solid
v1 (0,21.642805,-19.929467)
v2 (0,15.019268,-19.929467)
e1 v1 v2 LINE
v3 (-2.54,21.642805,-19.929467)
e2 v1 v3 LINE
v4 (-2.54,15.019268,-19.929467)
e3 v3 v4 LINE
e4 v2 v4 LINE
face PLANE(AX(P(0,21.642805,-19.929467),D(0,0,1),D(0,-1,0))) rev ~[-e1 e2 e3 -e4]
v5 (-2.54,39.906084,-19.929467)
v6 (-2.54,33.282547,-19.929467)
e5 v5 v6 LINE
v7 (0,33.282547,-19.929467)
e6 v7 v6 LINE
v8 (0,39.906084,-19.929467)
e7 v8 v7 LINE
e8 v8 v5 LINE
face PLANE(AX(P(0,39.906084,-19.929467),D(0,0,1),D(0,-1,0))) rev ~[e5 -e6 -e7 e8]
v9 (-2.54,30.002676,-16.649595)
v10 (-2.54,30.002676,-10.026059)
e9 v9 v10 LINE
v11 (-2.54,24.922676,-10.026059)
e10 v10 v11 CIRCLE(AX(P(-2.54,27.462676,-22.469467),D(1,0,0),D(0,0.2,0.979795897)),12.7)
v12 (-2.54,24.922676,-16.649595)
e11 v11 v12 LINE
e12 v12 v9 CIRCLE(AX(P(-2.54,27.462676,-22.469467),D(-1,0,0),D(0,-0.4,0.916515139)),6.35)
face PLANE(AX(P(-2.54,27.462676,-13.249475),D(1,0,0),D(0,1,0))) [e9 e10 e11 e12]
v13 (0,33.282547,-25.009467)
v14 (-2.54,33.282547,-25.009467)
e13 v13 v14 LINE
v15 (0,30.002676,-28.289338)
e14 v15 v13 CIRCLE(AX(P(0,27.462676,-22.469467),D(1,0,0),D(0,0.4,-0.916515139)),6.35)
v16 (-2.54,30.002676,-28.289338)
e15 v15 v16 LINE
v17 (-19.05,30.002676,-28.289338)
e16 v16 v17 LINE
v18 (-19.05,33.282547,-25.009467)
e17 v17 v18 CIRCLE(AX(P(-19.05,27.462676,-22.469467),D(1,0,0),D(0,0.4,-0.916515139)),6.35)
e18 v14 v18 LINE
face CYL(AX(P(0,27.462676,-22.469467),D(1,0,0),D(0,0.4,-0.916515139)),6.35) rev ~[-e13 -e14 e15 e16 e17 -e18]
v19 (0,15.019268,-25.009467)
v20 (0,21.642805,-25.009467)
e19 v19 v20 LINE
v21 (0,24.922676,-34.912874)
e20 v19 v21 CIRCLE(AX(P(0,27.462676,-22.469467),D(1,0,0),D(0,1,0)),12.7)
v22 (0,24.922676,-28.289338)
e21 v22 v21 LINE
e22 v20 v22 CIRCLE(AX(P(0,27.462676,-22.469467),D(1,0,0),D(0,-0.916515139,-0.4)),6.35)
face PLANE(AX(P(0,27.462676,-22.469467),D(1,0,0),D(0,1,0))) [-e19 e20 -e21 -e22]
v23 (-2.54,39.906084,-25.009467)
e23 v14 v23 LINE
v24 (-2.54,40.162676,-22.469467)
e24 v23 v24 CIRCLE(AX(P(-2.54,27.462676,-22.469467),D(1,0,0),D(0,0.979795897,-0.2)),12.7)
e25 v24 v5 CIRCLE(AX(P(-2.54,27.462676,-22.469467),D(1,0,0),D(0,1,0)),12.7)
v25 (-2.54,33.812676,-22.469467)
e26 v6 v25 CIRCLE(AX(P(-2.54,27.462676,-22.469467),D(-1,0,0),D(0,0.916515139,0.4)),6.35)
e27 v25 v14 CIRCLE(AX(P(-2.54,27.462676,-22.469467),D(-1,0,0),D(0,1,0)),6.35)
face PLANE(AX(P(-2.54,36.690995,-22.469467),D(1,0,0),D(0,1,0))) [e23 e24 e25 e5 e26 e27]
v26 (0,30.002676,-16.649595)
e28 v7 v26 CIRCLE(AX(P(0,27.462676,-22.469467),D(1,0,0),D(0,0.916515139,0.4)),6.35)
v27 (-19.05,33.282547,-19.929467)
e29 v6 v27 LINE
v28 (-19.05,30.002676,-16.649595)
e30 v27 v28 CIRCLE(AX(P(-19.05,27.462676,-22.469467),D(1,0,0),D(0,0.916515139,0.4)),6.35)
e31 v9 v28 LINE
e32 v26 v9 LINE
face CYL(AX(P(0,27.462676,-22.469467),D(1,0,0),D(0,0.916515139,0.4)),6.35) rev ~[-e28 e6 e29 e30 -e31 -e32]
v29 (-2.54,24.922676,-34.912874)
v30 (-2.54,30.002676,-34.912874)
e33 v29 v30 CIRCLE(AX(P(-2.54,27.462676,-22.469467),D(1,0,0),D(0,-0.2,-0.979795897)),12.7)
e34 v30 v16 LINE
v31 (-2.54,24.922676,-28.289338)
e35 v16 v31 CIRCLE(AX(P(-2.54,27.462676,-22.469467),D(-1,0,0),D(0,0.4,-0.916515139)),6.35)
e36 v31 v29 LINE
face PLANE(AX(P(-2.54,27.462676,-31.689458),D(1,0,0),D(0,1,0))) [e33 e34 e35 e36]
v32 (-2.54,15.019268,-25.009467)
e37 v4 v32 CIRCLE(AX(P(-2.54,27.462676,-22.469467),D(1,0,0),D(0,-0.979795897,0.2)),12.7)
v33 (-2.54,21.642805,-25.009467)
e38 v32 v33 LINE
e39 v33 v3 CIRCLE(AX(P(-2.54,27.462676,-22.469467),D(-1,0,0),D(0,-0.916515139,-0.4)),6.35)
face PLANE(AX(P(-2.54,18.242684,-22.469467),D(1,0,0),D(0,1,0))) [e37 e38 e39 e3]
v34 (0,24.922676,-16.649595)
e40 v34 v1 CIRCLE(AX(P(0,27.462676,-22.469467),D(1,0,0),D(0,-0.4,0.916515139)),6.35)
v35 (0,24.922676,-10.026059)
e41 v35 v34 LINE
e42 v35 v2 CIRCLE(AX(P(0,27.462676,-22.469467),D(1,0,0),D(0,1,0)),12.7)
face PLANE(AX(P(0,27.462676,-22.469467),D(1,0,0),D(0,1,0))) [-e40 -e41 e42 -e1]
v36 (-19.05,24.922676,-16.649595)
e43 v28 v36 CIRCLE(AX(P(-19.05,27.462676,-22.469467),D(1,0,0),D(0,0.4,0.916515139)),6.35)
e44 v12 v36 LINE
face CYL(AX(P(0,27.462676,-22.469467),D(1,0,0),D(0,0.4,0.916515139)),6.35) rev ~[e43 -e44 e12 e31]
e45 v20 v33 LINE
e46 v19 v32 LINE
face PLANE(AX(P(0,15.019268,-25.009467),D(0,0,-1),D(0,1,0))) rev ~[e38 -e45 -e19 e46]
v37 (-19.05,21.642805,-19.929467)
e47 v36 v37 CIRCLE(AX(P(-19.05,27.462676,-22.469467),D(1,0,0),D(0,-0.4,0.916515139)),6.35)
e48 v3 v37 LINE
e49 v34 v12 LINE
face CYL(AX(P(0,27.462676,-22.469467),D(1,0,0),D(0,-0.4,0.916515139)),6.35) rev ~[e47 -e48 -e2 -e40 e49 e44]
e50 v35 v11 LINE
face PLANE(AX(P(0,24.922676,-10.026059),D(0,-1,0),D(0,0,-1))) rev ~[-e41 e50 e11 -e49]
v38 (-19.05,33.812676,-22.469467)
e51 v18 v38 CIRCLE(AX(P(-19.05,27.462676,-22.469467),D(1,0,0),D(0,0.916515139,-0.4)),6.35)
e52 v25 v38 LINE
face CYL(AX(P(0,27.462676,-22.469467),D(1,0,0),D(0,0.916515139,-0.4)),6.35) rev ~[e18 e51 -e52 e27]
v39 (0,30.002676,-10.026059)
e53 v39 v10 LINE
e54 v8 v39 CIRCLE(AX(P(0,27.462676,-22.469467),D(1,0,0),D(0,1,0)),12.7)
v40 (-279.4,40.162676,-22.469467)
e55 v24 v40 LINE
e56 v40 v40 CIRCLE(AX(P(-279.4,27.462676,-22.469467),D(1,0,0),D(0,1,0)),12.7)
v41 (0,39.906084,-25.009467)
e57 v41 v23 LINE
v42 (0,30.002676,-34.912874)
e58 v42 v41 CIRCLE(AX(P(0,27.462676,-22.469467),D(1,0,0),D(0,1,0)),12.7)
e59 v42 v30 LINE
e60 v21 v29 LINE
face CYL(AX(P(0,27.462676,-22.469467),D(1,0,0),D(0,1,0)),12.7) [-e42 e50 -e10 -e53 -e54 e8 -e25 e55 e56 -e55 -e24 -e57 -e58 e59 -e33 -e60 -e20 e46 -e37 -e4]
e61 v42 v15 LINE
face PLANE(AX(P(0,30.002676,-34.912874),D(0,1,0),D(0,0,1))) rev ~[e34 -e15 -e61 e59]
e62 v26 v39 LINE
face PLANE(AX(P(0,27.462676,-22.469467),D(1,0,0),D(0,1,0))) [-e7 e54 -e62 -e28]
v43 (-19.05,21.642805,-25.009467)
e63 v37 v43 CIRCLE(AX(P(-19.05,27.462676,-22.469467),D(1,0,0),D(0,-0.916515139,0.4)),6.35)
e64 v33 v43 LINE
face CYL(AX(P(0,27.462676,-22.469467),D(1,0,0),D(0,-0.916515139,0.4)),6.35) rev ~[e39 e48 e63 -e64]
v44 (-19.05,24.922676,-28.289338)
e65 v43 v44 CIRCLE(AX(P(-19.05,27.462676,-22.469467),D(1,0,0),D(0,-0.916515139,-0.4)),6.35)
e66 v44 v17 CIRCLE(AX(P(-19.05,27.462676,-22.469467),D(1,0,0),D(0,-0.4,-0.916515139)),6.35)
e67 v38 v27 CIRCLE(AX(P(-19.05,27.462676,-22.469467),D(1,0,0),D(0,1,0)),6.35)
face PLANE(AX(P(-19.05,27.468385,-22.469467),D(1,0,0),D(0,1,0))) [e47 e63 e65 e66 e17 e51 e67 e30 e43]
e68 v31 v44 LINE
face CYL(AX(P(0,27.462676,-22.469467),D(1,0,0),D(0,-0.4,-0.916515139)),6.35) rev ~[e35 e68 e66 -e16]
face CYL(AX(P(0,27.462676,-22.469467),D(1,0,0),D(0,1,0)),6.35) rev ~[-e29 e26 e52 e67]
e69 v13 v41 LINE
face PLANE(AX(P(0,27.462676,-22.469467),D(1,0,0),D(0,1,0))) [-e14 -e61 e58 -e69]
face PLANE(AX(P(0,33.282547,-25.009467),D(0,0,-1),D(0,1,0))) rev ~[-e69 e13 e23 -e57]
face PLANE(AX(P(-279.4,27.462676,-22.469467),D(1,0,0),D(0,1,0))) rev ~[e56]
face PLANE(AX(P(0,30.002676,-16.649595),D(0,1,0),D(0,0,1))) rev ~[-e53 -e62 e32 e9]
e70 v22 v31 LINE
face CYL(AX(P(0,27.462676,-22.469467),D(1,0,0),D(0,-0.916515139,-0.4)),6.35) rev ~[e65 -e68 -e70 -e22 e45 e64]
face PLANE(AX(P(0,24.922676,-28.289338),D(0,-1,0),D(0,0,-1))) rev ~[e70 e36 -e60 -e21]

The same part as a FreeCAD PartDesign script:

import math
import FreeCAD as App
import Part
import Sketcher
from FreeCAD import Vector
Q = App.Units.Quantity

doc = App.newDocument("Part")
body = doc.addObject("PartDesign::Body", "Body")

# Sketch on YZ plane
sketch1 = body.newObject("Sketcher::SketchObject", "Sketch")
sketch1.AttachmentSupport = (doc.getObject("YZ_Plane"), [""])
sketch1.MapMode = "FlatFace"
sketch1.addGeometry(Part.Circle(Vector(27, -22, 0), Vector(0, 0, 1), 13), False)
sketch1.addConstraint([
    Sketcher.Constraint("Diameter", 0, Q("1 in")),
    Sketcher.Constraint("DistanceX", -1, 1, 0, 3, 27.462676),
    Sketcher.Constraint("DistanceY", 0, 3, -1, 1, 22.469467),
])
pad1 = body.newObject("PartDesign::Pad", "Pad")
pad1.Profile = sketch1
pad1.Length = Q("11 in")
pad1.Reversed = True

# Sketch on YZ plane
sketch2 = body.newObject("Sketcher::SketchObject", "Sketch001")
sketch2.AttachmentSupport = (doc.getObject("YZ_Plane"), [""])
sketch2.MapMode = "FlatFace"
sketch2.addGeometry([
    Part.ArcOfCircle(Part.Circle(Vector(27.5, -22.5, 0), Vector(0, 0, 1), 6.3), math.radians(-114), math.radians(-66)),  # 0
    Part.ArcOfCircle(Part.Circle(Vector(27.5, -22.5, 0), Vector(0, 0, 1), 6.3), math.radians(-66), math.radians(-24)),  # 1
    Part.ArcOfCircle(Part.Circle(Vector(27.5, -22.5, 0), Vector(0, 0, 1), 6.3), math.radians(-24), math.radians(0)),  # 2
    Part.ArcOfCircle(Part.Circle(Vector(27.5, -22.5, 0), Vector(0, 0, 1), 6.4), math.radians(0), math.radians(24)),  # 3
    Part.ArcOfCircle(Part.Circle(Vector(27.5, -22.5, 0), Vector(0, 0, 1), 6.4), math.radians(24), math.radians(66)),  # 4
    Part.ArcOfCircle(Part.Circle(Vector(27.5, -22.5, 0), Vector(0, 0, 1), 6.3), math.radians(66), math.radians(114)),  # 5
    Part.ArcOfCircle(Part.Circle(Vector(27.5, -22.5, 0), Vector(0, 0, 1), 6.4), math.radians(114), math.radians(156)),  # 6
    Part.ArcOfCircle(Part.Circle(Vector(27.5, -22.5, 0), Vector(0, 0, 1), 6.3), math.radians(156), math.radians(204)),  # 7
    Part.ArcOfCircle(Part.Circle(Vector(27.5, -22.5, 0), Vector(0, 0, 1), 6.3), math.radians(-156), math.radians(-114)),  # 8
], False)
sketch2.addConstraint([
    Sketcher.Constraint("Tangent", 0, 2, 1, 1),
    Sketcher.Constraint("Tangent", 1, 2, 2, 1),
    Sketcher.Constraint("Tangent", 2, 2, 3, 1),
    Sketcher.Constraint("Tangent", 3, 2, 4, 1),
    Sketcher.Constraint("Tangent", 4, 2, 5, 1),
    Sketcher.Constraint("Tangent", 5, 2, 6, 1),
    Sketcher.Constraint("Tangent", 6, 2, 7, 1),
    Sketcher.Constraint("Tangent", 7, 2, 8, 1),
    Sketcher.Constraint("Tangent", 8, 2, 0, 1),
    Sketcher.Constraint("Coincident", 2, 3, 0, 3),
    Sketcher.Constraint("Coincident", 4, 3, 0, 3),
    Sketcher.Constraint("Coincident", 6, 3, 0, 3),
    Sketcher.Constraint("Horizontal", 8, 3, 2, 2),
    Sketcher.Constraint("Horizontal", 4, 2, 5, 2),
    Sketcher.Constraint("Horizontal", 3, 2, 6, 2),
    Sketcher.Constraint("Horizontal", 1, 2, 7, 2),
    Sketcher.Constraint("Horizontal", 0, 2, 8, 2),
    Sketcher.Constraint("Vertical", 1, 2, 3, 2),
    Sketcher.Constraint("Vertical", 0, 2, 4, 2),
    Sketcher.Constraint("Radius", 0, Q("0.25 in")),
    Sketcher.Constraint("DistanceX", 6, 3, 0, 2, Q("0.1 in")),
    Sketcher.Constraint("DistanceY", 1, 2, 6, 3, Q("0.1 in")),
    Sketcher.Constraint("DistanceX", -1, 1, 0, 3, 27.462676),
    Sketcher.Constraint("DistanceY", 0, 3, -1, 1, 22.469467),
])
pocket1 = body.newObject("PartDesign::Pocket", "Pocket")
pocket1.Profile = sketch2
pocket1.Length = Q("0.75 in")

# Sketch on YZ plane
sketch3 = body.newObject("Sketcher::SketchObject", "Sketch002")
sketch3.AttachmentSupport = (doc.getObject("YZ_Plane"), [""])
sketch3.MapMode = "FlatFace"
sketch3.addGeometry([
    Part.LineSegment(Vector(15, -25, 0), Vector(21.6, -25, 0)),  # 0
    Part.ArcOfCircle(Part.Circle(Vector(27.5, -22.5, 0), Vector(0, 0, 1), 6.3), math.radians(156), math.radians(204)),  # 1
    Part.LineSegment(Vector(21.6, -19.9, 0), Vector(15, -19.9, 0)),  # 2
    Part.ArcOfCircle(Part.Circle(Vector(27.5, -22.5, 0), Vector(0, 0, 1), 12.7), math.radians(168), math.radians(192)),  # 3
    Part.LineSegment(Vector(24.9, -10, 0), Vector(24.9, -16.6, 0)),  # 4
    Part.ArcOfCircle(Part.Circle(Vector(27.5, -22.5, 0), Vector(0, 0, 1), 6.3), math.radians(66), math.radians(114)),  # 5
    Part.LineSegment(Vector(30, -16.6, 0), Vector(30, -10, 0)),  # 6
    Part.ArcOfCircle(Part.Circle(Vector(27.5, -22.5, 0), Vector(0, 0, 1), 12.7), math.radians(78), math.radians(102)),  # 7
    Part.ArcOfCircle(Part.Circle(Vector(27.5, -22.5, 0), Vector(0, 0, 1), 6.3), math.radians(-24), math.radians(0)),  # 8
    Part.LineSegment(Vector(33.3, -25, 0), Vector(39.9, -25, 0)),  # 9
    Part.ArcOfCircle(Part.Circle(Vector(27.5, -22.5, 0), Vector(0, 0, 1), 12.7), math.radians(-11.54), math.radians(0)),  # 10
    Part.ArcOfCircle(Part.Circle(Vector(27.5, -22.5, 0), Vector(0, 0, 1), 12.7), math.radians(0), math.radians(11.54)),  # 11
    Part.LineSegment(Vector(39.9, -19.9, 0), Vector(33.3, -19.9, 0)),  # 12
    Part.ArcOfCircle(Part.Circle(Vector(27.5, -22.5, 0), Vector(0, 0, 1), 6.4), math.radians(0), math.radians(24)),  # 13
    Part.LineSegment(Vector(30, -34.9, 0), Vector(30, -28.3, 0)),  # 14
    Part.ArcOfCircle(Part.Circle(Vector(27.5, -22.5, 0), Vector(0, 0, 1), 6.3), math.radians(-114), math.radians(-66)),  # 15
    Part.LineSegment(Vector(24.9, -28.3, 0), Vector(24.9, -34.9, 0)),  # 16
    Part.ArcOfCircle(Part.Circle(Vector(27.5, -22.5, 0), Vector(0, 0, 1), 12.7), math.radians(-102), math.radians(-78)),  # 17
], False)
sketch3.addConstraint([
    Sketcher.Constraint("Coincident", 0, 2, 1, 2),
    Sketcher.Constraint("Coincident", 1, 1, 2, 1),
    Sketcher.Constraint("Coincident", 2, 2, 3, 1),
    Sketcher.Constraint("Coincident", 3, 2, 0, 1),
    Sketcher.Constraint("Coincident", 4, 2, 5, 2),
    Sketcher.Constraint("Coincident", 5, 1, 6, 1),
    Sketcher.Constraint("Coincident", 6, 2, 7, 1),
    Sketcher.Constraint("Coincident", 7, 2, 4, 1),
    Sketcher.Constraint("Coincident", 8, 1, 9, 1),
    Sketcher.Constraint("Coincident", 9, 2, 10, 1),
    Sketcher.Constraint("Tangent", 10, 2, 11, 1),
    Sketcher.Constraint("Coincident", 11, 2, 12, 1),
    Sketcher.Constraint("Coincident", 12, 2, 13, 2),
    Sketcher.Constraint("Tangent", 13, 1, 8, 2),
    Sketcher.Constraint("Coincident", 14, 2, 15, 2),
    Sketcher.Constraint("Coincident", 15, 1, 16, 1),
    Sketcher.Constraint("Coincident", 16, 2, 17, 1),
    Sketcher.Constraint("Coincident", 17, 2, 14, 1),
    Sketcher.Constraint("Horizontal", 0),
    Sketcher.Constraint("Horizontal", 2),
    Sketcher.Constraint("Vertical", 4),
    Sketcher.Constraint("Vertical", 6),
    Sketcher.Constraint("Horizontal", 9),
    Sketcher.Constraint("Horizontal", 12),
    Sketcher.Constraint("Vertical", 14),
    Sketcher.Constraint("Vertical", 16),
    Sketcher.Constraint("Coincident", 3, 3, 1, 3),
    Sketcher.Constraint("Coincident", 5, 3, 1, 3),
    Sketcher.Constraint("Coincident", 7, 3, 1, 3),
    Sketcher.Constraint("Coincident", 8, 3, 1, 3),
    Sketcher.Constraint("Coincident", 10, 3, 1, 3),
    Sketcher.Constraint("Coincident", 15, 3, 1, 3),
    Sketcher.Constraint("Coincident", 17, 3, 1, 3),
    Sketcher.Constraint("Equal", 1, 5),
    Sketcher.Constraint("Equal", 3, 7),
    Sketcher.Constraint("Equal", 5, 8),
    Sketcher.Constraint("Equal", 7, 10),
    Sketcher.Constraint("Equal", 10, 11),
    Sketcher.Constraint("Equal", 8, 13),
    Sketcher.Constraint("Equal", 13, 15),
    Sketcher.Constraint("Equal", 11, 17),
    Sketcher.Constraint("Horizontal", 4, 2, 5, 1),
    Sketcher.Constraint("Horizontal", 3, 2, 8, 1),
    Sketcher.Constraint("Horizontal", 17, 3, 10, 2),
    Sketcher.Constraint("Horizontal", 2, 2, 11, 2),
    Sketcher.Constraint("Horizontal", 10, 2, 13, 1),
    Sketcher.Constraint("Horizontal", 14, 2, 15, 1),
    Sketcher.Constraint("Vertical", 0, 2, 1, 1),
    Sketcher.Constraint("Vertical", 6, 2, 14, 2),
    Sketcher.Constraint("Equal", 12, 4),
    Sketcher.Constraint("Radius", 3, Q("0.5 in")),
    Sketcher.Constraint("Radius", 1, Q("0.25 in")),
    Sketcher.Constraint("DistanceY", 0, 2, 5, 3, Q("0.1 in")),
    Sketcher.Constraint("DistanceX", -1, 1, 2, 2, 15.019268),
    Sketcher.Constraint("DistanceY", 6, 2, -1, 1, 10.026059),
])
pocket2 = body.newObject("PartDesign::Pocket", "Pocket001")
pocket2.Profile = sketch3
pocket2.Length = Q("0.1 in")

doc.recompute()
